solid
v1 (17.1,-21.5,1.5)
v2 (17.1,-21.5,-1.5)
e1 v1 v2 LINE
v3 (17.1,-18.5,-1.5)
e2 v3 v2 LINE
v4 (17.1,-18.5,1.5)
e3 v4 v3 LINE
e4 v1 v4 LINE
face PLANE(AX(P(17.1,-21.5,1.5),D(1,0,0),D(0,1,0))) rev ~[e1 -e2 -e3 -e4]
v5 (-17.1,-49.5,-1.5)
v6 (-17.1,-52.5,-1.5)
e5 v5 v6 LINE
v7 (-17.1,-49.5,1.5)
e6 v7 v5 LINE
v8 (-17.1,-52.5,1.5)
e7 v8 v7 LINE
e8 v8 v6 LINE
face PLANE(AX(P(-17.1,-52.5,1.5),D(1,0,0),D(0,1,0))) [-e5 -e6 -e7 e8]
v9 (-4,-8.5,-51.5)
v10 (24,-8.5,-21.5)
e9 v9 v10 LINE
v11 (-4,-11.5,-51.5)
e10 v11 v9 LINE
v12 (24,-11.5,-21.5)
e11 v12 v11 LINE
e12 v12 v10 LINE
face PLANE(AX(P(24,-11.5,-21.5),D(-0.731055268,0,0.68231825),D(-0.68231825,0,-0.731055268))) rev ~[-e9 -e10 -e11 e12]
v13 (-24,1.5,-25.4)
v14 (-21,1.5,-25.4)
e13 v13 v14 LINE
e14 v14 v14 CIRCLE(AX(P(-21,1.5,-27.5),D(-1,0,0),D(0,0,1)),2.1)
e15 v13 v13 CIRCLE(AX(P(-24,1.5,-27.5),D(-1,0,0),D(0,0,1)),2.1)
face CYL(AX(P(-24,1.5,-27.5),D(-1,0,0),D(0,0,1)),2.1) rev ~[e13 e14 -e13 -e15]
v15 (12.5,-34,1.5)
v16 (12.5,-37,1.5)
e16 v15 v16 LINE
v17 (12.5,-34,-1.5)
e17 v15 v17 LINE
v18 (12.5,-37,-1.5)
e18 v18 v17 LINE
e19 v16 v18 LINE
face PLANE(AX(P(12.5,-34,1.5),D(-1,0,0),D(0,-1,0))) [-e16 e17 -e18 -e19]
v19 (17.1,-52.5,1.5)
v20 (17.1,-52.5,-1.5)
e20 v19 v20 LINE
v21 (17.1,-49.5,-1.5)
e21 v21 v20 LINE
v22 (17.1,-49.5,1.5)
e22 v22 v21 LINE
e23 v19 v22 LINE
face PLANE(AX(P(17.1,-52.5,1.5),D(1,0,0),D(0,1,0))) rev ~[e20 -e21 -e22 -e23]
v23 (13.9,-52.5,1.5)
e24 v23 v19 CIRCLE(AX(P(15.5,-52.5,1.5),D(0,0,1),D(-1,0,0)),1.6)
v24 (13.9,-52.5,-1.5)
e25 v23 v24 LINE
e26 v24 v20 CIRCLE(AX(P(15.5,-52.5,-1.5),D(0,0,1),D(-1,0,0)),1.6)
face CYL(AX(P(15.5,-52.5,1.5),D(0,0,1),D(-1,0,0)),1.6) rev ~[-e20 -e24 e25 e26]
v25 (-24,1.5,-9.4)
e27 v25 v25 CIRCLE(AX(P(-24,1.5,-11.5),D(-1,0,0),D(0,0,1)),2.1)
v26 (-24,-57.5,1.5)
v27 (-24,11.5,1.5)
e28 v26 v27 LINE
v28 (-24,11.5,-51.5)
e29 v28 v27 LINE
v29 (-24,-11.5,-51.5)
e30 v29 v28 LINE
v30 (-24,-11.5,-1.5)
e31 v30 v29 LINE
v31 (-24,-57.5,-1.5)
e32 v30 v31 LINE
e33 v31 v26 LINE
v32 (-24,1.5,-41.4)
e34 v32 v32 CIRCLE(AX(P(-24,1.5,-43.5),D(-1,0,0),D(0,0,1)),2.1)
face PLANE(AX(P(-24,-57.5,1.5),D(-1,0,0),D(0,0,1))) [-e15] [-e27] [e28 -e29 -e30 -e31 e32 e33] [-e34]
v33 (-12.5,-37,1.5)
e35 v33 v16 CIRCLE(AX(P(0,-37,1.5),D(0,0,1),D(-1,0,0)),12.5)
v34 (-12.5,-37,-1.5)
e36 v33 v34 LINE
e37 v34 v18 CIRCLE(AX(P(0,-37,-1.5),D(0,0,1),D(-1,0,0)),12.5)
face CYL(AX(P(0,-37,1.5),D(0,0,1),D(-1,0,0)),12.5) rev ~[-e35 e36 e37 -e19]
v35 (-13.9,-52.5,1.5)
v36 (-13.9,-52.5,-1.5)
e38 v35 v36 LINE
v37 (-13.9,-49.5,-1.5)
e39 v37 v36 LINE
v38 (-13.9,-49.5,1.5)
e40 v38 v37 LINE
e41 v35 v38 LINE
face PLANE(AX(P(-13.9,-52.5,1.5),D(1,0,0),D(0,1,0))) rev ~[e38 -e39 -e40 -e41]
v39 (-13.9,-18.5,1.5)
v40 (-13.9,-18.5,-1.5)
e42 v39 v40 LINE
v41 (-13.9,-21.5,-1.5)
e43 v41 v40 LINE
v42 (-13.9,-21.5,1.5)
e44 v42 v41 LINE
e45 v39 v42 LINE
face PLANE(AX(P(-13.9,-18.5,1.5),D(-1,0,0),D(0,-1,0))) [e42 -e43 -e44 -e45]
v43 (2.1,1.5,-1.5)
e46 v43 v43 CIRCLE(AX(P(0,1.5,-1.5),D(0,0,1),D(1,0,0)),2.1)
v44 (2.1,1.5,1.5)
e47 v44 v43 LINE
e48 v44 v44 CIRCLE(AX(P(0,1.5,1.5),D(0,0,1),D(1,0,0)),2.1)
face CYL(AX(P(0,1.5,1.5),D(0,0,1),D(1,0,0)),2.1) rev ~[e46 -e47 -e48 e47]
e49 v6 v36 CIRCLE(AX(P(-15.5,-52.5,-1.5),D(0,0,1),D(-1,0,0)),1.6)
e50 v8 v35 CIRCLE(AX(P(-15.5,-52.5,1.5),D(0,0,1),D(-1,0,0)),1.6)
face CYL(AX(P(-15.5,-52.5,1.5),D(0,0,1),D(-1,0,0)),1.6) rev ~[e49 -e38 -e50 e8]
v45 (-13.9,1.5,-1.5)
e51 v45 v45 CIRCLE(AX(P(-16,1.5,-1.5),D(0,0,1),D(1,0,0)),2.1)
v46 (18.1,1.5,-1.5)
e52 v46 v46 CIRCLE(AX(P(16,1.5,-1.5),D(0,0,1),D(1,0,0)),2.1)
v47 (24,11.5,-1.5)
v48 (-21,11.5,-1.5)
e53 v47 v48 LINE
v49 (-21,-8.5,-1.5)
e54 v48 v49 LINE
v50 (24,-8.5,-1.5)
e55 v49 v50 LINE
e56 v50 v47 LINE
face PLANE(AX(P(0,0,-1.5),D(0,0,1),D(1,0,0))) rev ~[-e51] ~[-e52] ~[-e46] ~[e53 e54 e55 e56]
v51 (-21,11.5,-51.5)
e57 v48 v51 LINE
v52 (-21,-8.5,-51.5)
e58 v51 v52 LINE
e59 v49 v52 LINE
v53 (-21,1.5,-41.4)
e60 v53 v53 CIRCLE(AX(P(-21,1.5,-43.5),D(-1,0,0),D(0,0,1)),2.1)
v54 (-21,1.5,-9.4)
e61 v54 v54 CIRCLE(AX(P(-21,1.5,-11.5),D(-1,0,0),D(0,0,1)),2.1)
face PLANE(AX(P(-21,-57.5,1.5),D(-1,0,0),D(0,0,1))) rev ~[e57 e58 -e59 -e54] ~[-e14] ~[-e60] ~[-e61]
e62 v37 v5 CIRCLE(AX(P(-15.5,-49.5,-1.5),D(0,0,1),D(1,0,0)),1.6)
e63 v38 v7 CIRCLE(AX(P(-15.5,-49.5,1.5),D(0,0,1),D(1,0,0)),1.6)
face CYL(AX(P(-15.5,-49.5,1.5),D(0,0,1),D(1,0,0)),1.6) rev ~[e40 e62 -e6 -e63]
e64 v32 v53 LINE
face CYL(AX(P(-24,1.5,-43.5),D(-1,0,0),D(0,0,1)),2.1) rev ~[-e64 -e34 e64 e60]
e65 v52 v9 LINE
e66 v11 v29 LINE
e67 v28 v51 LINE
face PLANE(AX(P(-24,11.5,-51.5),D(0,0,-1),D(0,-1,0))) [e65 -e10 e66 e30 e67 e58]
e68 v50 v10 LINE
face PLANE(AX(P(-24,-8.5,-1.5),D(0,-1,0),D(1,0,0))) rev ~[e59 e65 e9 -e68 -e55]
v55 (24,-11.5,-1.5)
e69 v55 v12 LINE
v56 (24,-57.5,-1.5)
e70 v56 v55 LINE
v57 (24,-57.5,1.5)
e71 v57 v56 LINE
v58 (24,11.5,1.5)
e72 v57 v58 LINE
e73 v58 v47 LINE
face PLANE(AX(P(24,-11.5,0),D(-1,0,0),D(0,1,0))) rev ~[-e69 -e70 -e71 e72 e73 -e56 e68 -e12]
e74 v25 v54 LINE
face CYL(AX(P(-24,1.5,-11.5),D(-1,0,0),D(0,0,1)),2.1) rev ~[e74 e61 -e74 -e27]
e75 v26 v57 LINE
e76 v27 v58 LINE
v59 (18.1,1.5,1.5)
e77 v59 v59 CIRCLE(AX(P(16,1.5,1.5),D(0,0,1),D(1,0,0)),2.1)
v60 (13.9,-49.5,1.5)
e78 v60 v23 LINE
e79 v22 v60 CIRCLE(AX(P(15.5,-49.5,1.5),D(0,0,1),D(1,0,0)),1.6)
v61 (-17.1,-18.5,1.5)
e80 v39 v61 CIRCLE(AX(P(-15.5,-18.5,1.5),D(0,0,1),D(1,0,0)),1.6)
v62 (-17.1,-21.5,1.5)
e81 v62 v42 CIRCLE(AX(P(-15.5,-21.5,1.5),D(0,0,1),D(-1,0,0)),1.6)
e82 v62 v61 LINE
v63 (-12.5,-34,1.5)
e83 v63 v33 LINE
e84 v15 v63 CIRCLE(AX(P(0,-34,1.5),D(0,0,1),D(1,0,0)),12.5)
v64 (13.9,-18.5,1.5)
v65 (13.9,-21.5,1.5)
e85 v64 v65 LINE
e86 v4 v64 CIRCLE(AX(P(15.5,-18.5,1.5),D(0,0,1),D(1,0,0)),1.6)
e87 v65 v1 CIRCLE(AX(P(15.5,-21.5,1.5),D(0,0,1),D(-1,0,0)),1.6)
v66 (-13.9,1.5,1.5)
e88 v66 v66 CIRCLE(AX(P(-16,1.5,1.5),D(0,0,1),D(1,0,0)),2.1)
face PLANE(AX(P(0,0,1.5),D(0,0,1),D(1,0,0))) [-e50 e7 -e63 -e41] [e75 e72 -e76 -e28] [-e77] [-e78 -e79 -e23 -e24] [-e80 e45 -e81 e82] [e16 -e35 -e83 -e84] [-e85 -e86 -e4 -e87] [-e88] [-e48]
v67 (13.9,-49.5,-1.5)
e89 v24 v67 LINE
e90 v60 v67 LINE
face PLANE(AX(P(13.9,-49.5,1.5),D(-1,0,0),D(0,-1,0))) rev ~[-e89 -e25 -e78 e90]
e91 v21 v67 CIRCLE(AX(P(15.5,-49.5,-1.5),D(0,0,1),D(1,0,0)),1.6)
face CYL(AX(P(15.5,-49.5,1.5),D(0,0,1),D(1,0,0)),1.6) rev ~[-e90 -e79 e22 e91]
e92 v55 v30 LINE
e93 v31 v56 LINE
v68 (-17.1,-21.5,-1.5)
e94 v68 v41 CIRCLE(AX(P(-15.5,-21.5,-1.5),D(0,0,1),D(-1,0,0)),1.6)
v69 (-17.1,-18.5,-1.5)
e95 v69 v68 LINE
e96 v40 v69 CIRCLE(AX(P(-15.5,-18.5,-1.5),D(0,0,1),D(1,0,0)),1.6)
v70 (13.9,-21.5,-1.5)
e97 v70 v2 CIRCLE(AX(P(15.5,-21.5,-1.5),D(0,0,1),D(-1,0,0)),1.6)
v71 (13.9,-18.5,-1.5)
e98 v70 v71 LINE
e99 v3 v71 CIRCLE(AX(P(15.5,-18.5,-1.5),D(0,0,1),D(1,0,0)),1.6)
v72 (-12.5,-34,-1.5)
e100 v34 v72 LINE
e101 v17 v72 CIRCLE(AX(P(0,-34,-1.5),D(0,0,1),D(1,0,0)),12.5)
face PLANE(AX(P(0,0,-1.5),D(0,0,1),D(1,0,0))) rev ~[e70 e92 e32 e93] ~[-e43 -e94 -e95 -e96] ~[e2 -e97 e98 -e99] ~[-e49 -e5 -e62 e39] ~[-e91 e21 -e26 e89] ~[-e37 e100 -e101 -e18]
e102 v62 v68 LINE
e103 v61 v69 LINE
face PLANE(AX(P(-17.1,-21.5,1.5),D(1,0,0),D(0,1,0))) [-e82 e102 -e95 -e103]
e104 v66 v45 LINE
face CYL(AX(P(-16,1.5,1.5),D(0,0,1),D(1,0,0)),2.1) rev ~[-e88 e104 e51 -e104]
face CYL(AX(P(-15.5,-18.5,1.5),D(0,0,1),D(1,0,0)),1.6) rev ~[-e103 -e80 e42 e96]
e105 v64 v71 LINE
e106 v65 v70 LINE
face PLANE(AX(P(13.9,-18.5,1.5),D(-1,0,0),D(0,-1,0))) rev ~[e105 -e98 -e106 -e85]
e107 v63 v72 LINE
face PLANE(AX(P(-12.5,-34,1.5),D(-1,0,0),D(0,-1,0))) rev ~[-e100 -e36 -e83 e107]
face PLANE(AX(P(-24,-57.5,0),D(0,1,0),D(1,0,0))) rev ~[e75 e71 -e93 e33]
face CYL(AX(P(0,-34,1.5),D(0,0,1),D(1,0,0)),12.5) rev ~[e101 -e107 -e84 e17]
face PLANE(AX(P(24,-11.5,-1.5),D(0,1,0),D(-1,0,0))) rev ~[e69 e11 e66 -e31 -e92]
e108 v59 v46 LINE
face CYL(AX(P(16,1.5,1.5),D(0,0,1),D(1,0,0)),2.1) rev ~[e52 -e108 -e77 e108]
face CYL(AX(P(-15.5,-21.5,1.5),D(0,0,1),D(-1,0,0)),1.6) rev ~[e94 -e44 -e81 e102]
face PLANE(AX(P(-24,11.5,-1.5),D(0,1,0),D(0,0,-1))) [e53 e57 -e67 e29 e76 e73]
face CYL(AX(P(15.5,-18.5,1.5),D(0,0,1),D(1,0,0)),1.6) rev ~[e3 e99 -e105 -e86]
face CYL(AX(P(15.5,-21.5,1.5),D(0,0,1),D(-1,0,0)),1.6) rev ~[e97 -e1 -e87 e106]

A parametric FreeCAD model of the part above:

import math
import FreeCAD as App
import Part
import Sketcher
Q = App.Units.Quantity

doc = App.newDocument("Part")
params = doc.addObject("Spreadsheet::Sheet", "Params")
for row, (alias, value) in enumerate([
    ("sketch1_width", "48 mm"),
    ("sketch1_height", "69 mm"),
    ("pad1_length", "3 mm"),
    ("sketch2_radius", "1.6 mm"),
    ("sketch2_height", "3 mm"),
    ("sketch3_height", "3 mm"),
    ("sketch3_width", "48 mm"),
    ("pad2_length", "50 mm"),
    ("sketch4_radius", "12.5 mm"),
    ("sketch4_height", "3 mm"),
    ("sketch5_width", "20 mm"),
    ("sketch5_height", "50 mm"),
    ("pad3_length", "3 mm"),
    ("sketch6_diameter", "4.2 mm"),
    ("sketch7_width", "28 mm"),
    ("sketch7_height", "30 mm"),
    ("sketch8_diameter", "4.2 mm"),
], start=1):
    params.set(f"A{row}", alias)
    params.set(f"B{row}", "=" + value)
    params.setAlias(f"B{row}", alias)

body = doc.addObject("PartDesign::Body", "Body")

# Sketch on XY plane
sketch1 = body.newObject("Sketcher::SketchObject", "Sketch")
sketch1.AttachmentSupport = (doc.getObject("XY_Plane"), [""])
sketch1.MapMode = "FlatFace"
sketch1.addGeometry([
    Part.LineSegment(App.Vector(24, 12, 0), App.Vector(-24, 12, 0)),
    Part.LineSegment(App.Vector(-24, 12, 0), App.Vector(-24, -58, 0)),
    Part.LineSegment(App.Vector(-24, -58, 0), App.Vector(24, -58, 0)),
    Part.LineSegment(App.Vector(24, -58, 0), App.Vector(24, 12, 0)),
], False)
sketch1.addConstraint([
    Sketcher.Constraint("Coincident", 0, 2, 1, 1),
    Sketcher.Constraint("Coincident", 1, 2, 2, 1),
    Sketcher.Constraint("Coincident", 2, 2, 3, 1),
    Sketcher.Constraint("Coincident", 3, 2, 0, 1),
    Sketcher.Constraint("Horizontal", 0),
    Sketcher.Constraint("Vertical", 1),
    Sketcher.Constraint("Horizontal", 2),
    Sketcher.Constraint("Vertical", 3),
    Sketcher.Constraint("DistanceX", 0, 2, 0, 1, Q("48 mm")),
    Sketcher.Constraint("DistanceY", 1, 2, 1, 1, Q("69 mm")),
    Sketcher.Constraint("DistanceX", 0, 2, -1, 1, Q("24 mm")),
    Sketcher.Constraint("DistanceY", -1, 1, 0, 2, Q("11.5 mm")),
])
sketch1.setExpression("Constraints[8]", "Params.sketch1_width")
sketch1.setExpression("Constraints[9]", "Params.sketch1_height")
pad1 = body.newObject("PartDesign::Pad", "Pad")
pad1.Profile = sketch1
pad1.setExpression("Length", "Params.pad1_length")
pad1.Midplane = True

# Sketch on XY plane
sketch2 = body.newObject("Sketcher::SketchObject", "Sketch001")
sketch2.AttachmentSupport = (doc.getObject("XY_Plane"), [""])
sketch2.MapMode = "FlatFace"
sketch2.AttachmentOffset = App.Placement(App.Vector(0, 0, 1.5), App.Rotation())
sketch2.addGeometry([
    Part.LineSegment(App.Vector(-17.1, -49.5, 0), App.Vector(-17.1, -52.5, 0)),  # 0
    Part.ArcOfCircle(Part.Circle(App.Vector(-15.5, -52.5, 0), App.Vector(0, 0, 1), 1.6), math.radians(180), math.radians(360)),  # 1
    Part.LineSegment(App.Vector(-13.9, -52.5, 0), App.Vector(-13.9, -49.5, 0)),  # 2
    Part.ArcOfCircle(Part.Circle(App.Vector(-15.5, -49.5, 0), App.Vector(0, 0, 1), 1.6), math.radians(0), math.radians(180)),  # 3
    Part.LineSegment(App.Vector(-13.9, -21.5, 0), App.Vector(-13.9, -18.5, 0)),  # 4
    Part.ArcOfCircle(Part.Circle(App.Vector(-15.5, -18.5, 0), App.Vector(0, 0, 1), 1.6), math.radians(0), math.radians(180)),  # 5
    Part.LineSegment(App.Vector(-17.1, -18.5, 0), App.Vector(-17.1, -21.5, 0)),  # 6
    Part.ArcOfCircle(Part.Circle(App.Vector(-15.5, -21.5, 0), App.Vector(0, 0, 1), 1.6), math.radians(180), math.radians(360)),  # 7
    Part.LineSegment(App.Vector(17.1, -21.5, 0), App.Vector(17.1, -18.5, 0)),  # 8
    Part.ArcOfCircle(Part.Circle(App.Vector(15.5, -18.5, 0), App.Vector(0, 0, 1), 1.6), math.radians(0), math.radians(180)),  # 9
    Part.LineSegment(App.Vector(13.9, -18.5, 0), App.Vector(13.9, -21.5, 0)),  # 10
    Part.ArcOfCircle(Part.Circle(App.Vector(15.5, -21.5, 0), App.Vector(0, 0, 1), 1.6), math.radians(180), math.radians(360)),  # 11
    Part.LineSegment(App.Vector(13.9, -49.5, 0), App.Vector(13.9, -52.5, 0)),  # 12
    Part.ArcOfCircle(Part.Circle(App.Vector(15.5, -52.5, 0), App.Vector(0, 0, 1), 1.6), math.radians(180), math.radians(360)),  # 13
    Part.LineSegment(App.Vector(17.1, -52.5, 0), App.Vector(17.1, -49.5, 0)),  # 14
    Part.ArcOfCircle(Part.Circle(App.Vector(15.5, -49.5, 0), App.Vector(0, 0, 1), 1.6), math.radians(0), math.radians(180)),  # 15
], False)
sketch2.addConstraint([
    Sketcher.Constraint("Tangent", 0, 2, 1, 1),
    Sketcher.Constraint("Tangent", 1, 2, 2, 1),
    Sketcher.Constraint("Tangent", 2, 2, 3, 1),
    Sketcher.Constraint("Tangent", 3, 2, 0, 1),
    Sketcher.Constraint("Tangent", 4, 2, 5, 1),
    Sketcher.Constraint("Tangent", 5, 2, 6, 1),
    Sketcher.Constraint("Tangent", 6, 2, 7, 1),
    Sketcher.Constraint("Tangent", 7, 2, 4, 1),
    Sketcher.Constraint("Tangent", 8, 2, 9, 1),
    Sketcher.Constraint("Tangent", 9, 2, 10, 1),
    Sketcher.Constraint("Tangent", 10, 2, 11, 1),
    Sketcher.Constraint("Tangent", 11, 2, 8, 1),
    Sketcher.Constraint("Tangent", 12, 2, 13, 1),
    Sketcher.Constraint("Tangent", 13, 2, 14, 1),
    Sketcher.Constraint("Tangent", 14, 2, 15, 1),
    Sketcher.Constraint("Tangent", 15, 2, 12, 1),
    Sketcher.Constraint("Vertical", 0),
    Sketcher.Constraint("Vertical", 2),
    Sketcher.Constraint("Vertical", 4),
    Sketcher.Constraint("Vertical", 6),
    Sketcher.Constraint("Vertical", 8),
    Sketcher.Constraint("Vertical", 10),
    Sketcher.Constraint("Vertical", 12),
    Sketcher.Constraint("Vertical", 14),
    Sketcher.Constraint("Equal", 3, 5),
    Sketcher.Constraint("Equal", 7, 9),
    Sketcher.Constraint("Equal", 11, 13),
    Sketcher.Constraint("Symmetric", 5, 3, 9, 3, -2),
    Sketcher.Constraint("Symmetric", 1, 3, 13, 3, -2),
    Sketcher.Constraint("Horizontal", 7, 3, 11, 3),
    Sketcher.Constraint("Horizontal", 3, 3, 15, 3),
    Sketcher.Constraint("Vertical", 3, 3, 5, 3),
    Sketcher.Constraint("Equal", 2, 4),
    Sketcher.Constraint("Radius", 1, Q("1.6 mm")),
    Sketcher.Constraint("DistanceY", 0, 2, 0, 1, Q("3 mm")),
    Sketcher.Constraint("DistanceY", 3, 3, 5, 3, Q("31 mm")),
    Sketcher.Constraint("DistanceX", 5, 3, 9, 3, Q("31 mm")),
    Sketcher.Constraint("DistanceY", 1, 3, -1, 1, Q("52.5 mm")),
])
sketch2.setExpression("Constraints[33]", "Params.sketch2_radius")
sketch2.setExpression("Constraints[34]", "Params.sketch2_height")
pocket1 = body.newObject("PartDesign::Pocket", "Pocket")
pocket1.Profile = sketch2
pocket1.Type = "UpToFirst"

# Sketch on XY plane
sketch3 = body.newObject("Sketcher::SketchObject", "Sketch002")
sketch3.AttachmentSupport = (doc.getObject("XY_Plane"), [""])
sketch3.MapMode = "FlatFace"
sketch3.AttachmentOffset = App.Placement(App.Vector(0, 0, -1.5), App.Rotation())
sketch3.addGeometry([
    Part.LineSegment(App.Vector(24, -11.5, 0), App.Vector(-24, -11.5, 0)),
    Part.LineSegment(App.Vector(-24, -11.5, 0), App.Vector(-24, -8.5, 0)),
    Part.LineSegment(App.Vector(-24, -8.5, 0), App.Vector(24, -8.5, 0)),
    Part.LineSegment(App.Vector(24, -8.5, 0), App.Vector(24, -11.5, 0)),
], False)
sketch3.addConstraint([
    Sketcher.Constraint("Coincident", 0, 2, 1, 1),
    Sketcher.Constraint("Coincident", 1, 2, 2, 1),
    Sketcher.Constraint("Coincident", 2, 2, 3, 1),
    Sketcher.Constraint("Coincident", 3, 2, 0, 1),
    Sketcher.Constraint("Horizontal", 0),
    Sketcher.Constraint("Vertical", 1),
    Sketcher.Constraint("Horizontal", 2),
    Sketcher.Constraint("Vertical", 3),
    Sketcher.Constraint("DistanceY", 1, 1, 1, 2, Q("3 mm")),
    Sketcher.Constraint("DistanceX", 0, 2, 0, 1, Q("48 mm")),
    Sketcher.Constraint("DistanceX", 0, 2, -1, 1, Q("24 mm")),
    Sketcher.Constraint("DistanceY", 0, 2, -1, 1, Q("11.5 mm")),
])
sketch3.setExpression("Constraints[8]", "Params.sketch3_height")
sketch3.setExpression("Constraints[9]", "Params.sketch3_width")
pad2 = body.newObject("PartDesign::Pad", "Pad001")
pad2.Profile = sketch3
pad2.setExpression("Length", "Params.pad2_length")
pad2.Reversed = True

# Sketch on XY plane
sketch4 = body.newObject("Sketcher::SketchObject", "Sketch003")
sketch4.AttachmentSupport = (doc.getObject("XY_Plane"), [""])
sketch4.MapMode = "FlatFace"
sketch4.AttachmentOffset = App.Placement(App.Vector(0, 0, 1.5), App.Rotation())
sketch4.addGeometry([
    Part.LineSegment(App.Vector(12.5, -37, 0), App.Vector(12.5, -34, 0)),
    Part.ArcOfCircle(Part.Circle(App.Vector(0, -34, 0), App.Vector(0, 0, 1), 12.5), math.radians(0), math.radians(180)),
    Part.LineSegment(App.Vector(-12.5, -34, 0), App.Vector(-12.5, -37, 0)),
    Part.ArcOfCircle(Part.Circle(App.Vector(0, -37, 0), App.Vector(0, 0, 1), 12.5), math.radians(180), math.radians(360)),
], False)
sketch4.addConstraint([
    Sketcher.Constraint("Tangent", 0, 2, 1, 1),
    Sketcher.Constraint("Tangent", 1, 2, 2, 1),
    Sketcher.Constraint("Tangent", 2, 2, 3, 1),
    Sketcher.Constraint("Tangent", 3, 2, 0, 1),
    Sketcher.Constraint("Vertical", 0),
    Sketcher.Constraint("Vertical", 2),
    Sketcher.Constraint("PointOnObject", 1, 3, -2),
    Sketcher.Constraint("Radius", 1, Q("12.5 mm")),
    Sketcher.Constraint("DistanceY", 0, 1, 0, 2, Q("3 mm")),
    Sketcher.Constraint("DistanceY", 1, 3, -1, 1, Q("34 mm")),
])
sketch4.setExpression("Constraints[7]", "Params.sketch4_radius")
sketch4.setExpression("Constraints[8]", "Params.sketch4_height")
pocket2 = body.newObject("PartDesign::Pocket", "Pocket001")
pocket2.Profile = sketch4
pocket2.Type = "UpToFirst"

# Sketch on YZ plane
sketch5 = body.newObject("Sketcher::SketchObject", "Sketch004")
sketch5.AttachmentSupport = (doc.getObject("YZ_Plane"), [""])
sketch5.MapMode = "FlatFace"
sketch5.AttachmentOffset = App.Placement(App.Vector(0, 0, -24), App.Rotation())
sketch5.addGeometry([
    Part.LineSegment(App.Vector(-8, -2, 0), App.Vector(12, -2, 0)),
    Part.LineSegment(App.Vector(12, -2, 0), App.Vector(12, -52, 0)),
    Part.LineSegment(App.Vector(12, -52, 0), App.Vector(-8, -52, 0)),
    Part.LineSegment(App.Vector(-8, -52, 0), App.Vector(-8, -2, 0)),
], False)
sketch5.addConstraint([
    Sketcher.Constraint("Coincident", 0, 2, 1, 1),
    Sketcher.Constraint("Coincident", 1, 2, 2, 1),
    Sketcher.Constraint("Coincident", 2, 2, 3, 1),
    Sketcher.Constraint("Coincident", 3, 2, 0, 1),
    Sketcher.Constraint("Horizontal", 0),
    Sketcher.Constraint("Vertical", 1),
    Sketcher.Constraint("Horizontal", 2),
    Sketcher.Constraint("Vertical", 3),
    Sketcher.Constraint("DistanceX", 0, 1, 0, 2, Q("20 mm")),
    Sketcher.Constraint("DistanceY", 1, 2, 1, 1, Q("50 mm")),
    Sketcher.Constraint("DistanceX", -1, 1, 0, 2, Q("11.5 mm")),
    Sketcher.Constraint("DistanceY", 0, 2, -1, 1, Q("1.5 mm")),
])
sketch5.setExpression("Constraints[8]", "Params.sketch5_width")
sketch5.setExpression("Constraints[9]", "Params.sketch5_height")
pad3 = body.newObject("PartDesign::Pad", "Pad002")
pad3.Profile = sketch5
pad3.setExpression("Length", "Params.pad3_length")

# Sketch on XY plane
sketch6 = body.newObject("Sketcher::SketchObject", "Sketch005")
sketch6.AttachmentSupport = (doc.getObject("XY_Plane"), [""])
sketch6.MapMode = "FlatFace"
sketch6.AttachmentOffset = App.Placement(App.Vector(0, 0, 1.5), App.Rotation())
sketch6.addGeometry([
    Part.Circle(App.Vector(16, 1.5, 0), App.Vector(0, 0, 1), 2.1),
    Part.Circle(App.Vector(0, 1.5, 0), App.Vector(0, 0, 1), 2.1),
    Part.Circle(App.Vector(-16, 1.5, 0), App.Vector(0, 0, 1), 2.1),
], False)
sketch6.addConstraint([
    Sketcher.Constraint("Equal", 0, 1),
    Sketcher.Constraint("Equal", 1, 2),
    Sketcher.Constraint("Symmetric", 0, 3, 2, 3, -2),
    Sketcher.Constraint("PointOnObject", 1, 3, -2),
    Sketcher.Constraint("Horizontal", 0, 3, 1, 3),
    Sketcher.Constraint("Diameter", 0, Q("4.2 mm")),
    Sketcher.Constraint("DistanceX", -1, 1, 0, 3, Q("16 mm")),
    Sketcher.Constraint("DistanceY", -1, 1, 0, 3, Q("1.5 mm")),
])
sketch6.setExpression("Constraints[5]", "Params.sketch6_diameter")
pocket3 = body.newObject("PartDesign::Pocket", "Pocket002")
pocket3.Profile = sketch6
pocket3.Type = "UpToFirst"

# Sketch on XZ plane
sketch7 = body.newObject("Sketcher::SketchObject", "Sketch006")
sketch7.AttachmentSupport = (doc.getObject("XZ_Plane"), [""])
sketch7.MapMode = "FlatFace"
sketch7.AttachmentOffset = App.Placement(App.Vector(0, 0, 11.5), App.Rotation())
sketch7.addGeometry([
    Part.LineSegment(App.Vector(24, -52, 0), App.Vector(24, -22, 0)),
    Part.LineSegment(App.Vector(24, -22, 0), App.Vector(-4, -52, 0)),
    Part.LineSegment(App.Vector(-4, -52, 0), App.Vector(24, -52, 0)),
], False)
sketch7.addConstraint([
    Sketcher.Constraint("Coincident", 0, 2, 1, 1),
    Sketcher.Constraint("Coincident", 1, 2, 2, 1),
    Sketcher.Constraint("Coincident", 2, 2, 0, 1),
    Sketcher.Constraint("Vertical", 0),
    Sketcher.Constraint("Horizontal", 2),
    Sketcher.Constraint("DistanceX", 2, 1, 2, 2, Q("28 mm")),
    Sketcher.Constraint("DistanceY", 0, 1, 0, 2, Q("30 mm")),
    Sketcher.Constraint("DistanceX", -1, 1, 0, 2, Q("24 mm")),
    Sketcher.Constraint("DistanceY", 0, 2, -1, 1, Q("21.5 mm")),
])
sketch7.setExpression("Constraints[5]", "Params.sketch7_width")
sketch7.setExpression("Constraints[6]", "Params.sketch7_height")
pocket4 = body.newObject("PartDesign::Pocket", "Pocket003")
pocket4.Profile = sketch7
pocket4.Type = "UpToFirst"

# Sketch on YZ plane
sketch8 = body.newObject("Sketcher::SketchObject", "Sketch007")
sketch8.AttachmentSupport = (doc.getObject("YZ_Plane"), [""])
sketch8.MapMode = "FlatFace"
sketch8.AttachmentOffset = App.Placement(App.Vector(0, 0, -24), App.Rotation())
sketch8.addGeometry([
    Part.Circle(App.Vector(1.5, -11.5, 0), App.Vector(0, 0, 1), 2.1),
    Part.Circle(App.Vector(1.5, -43.5, 0), App.Vector(0, 0, 1), 2.1),
    Part.Circle(App.Vector(1.5, -27.5, 0), App.Vector(0, 0, 1), 2.1),
], False)
sketch8.addConstraint([
    Sketcher.Constraint("Equal", 0, 1),
    Sketcher.Constraint("Equal", 1, 2),
    Sketcher.Constraint("Vertical", 0, 3, 1, 3),
    Sketcher.Constraint("Vertical", 1, 3, 2, 3),
    Sketcher.Constraint("Diameter", 0, Q("4.2 mm")),
    Sketcher.Constraint("DistanceY", 2, 3, 0, 3, Q("16 mm")),
    Sketcher.Constraint("DistanceY", 1, 3, 2, 3, Q("16 mm")),
    Sketcher.Constraint("DistanceX", -1, 1, 0, 3, Q("1.5 mm")),
    Sketcher.Constraint("DistanceY", 0, 3, -1, 1, Q("11.5 mm")),
])
sketch8.setExpression("Constraints[4]", "Params.sketch8_diameter")
pocket5 = body.newObject("PartDesign::Pocket", "Pocket004")
pocket5.Profile = sketch8
pocket5.Type = "UpToFirst"
pocket5.Reversed = True

doc.recompute()
